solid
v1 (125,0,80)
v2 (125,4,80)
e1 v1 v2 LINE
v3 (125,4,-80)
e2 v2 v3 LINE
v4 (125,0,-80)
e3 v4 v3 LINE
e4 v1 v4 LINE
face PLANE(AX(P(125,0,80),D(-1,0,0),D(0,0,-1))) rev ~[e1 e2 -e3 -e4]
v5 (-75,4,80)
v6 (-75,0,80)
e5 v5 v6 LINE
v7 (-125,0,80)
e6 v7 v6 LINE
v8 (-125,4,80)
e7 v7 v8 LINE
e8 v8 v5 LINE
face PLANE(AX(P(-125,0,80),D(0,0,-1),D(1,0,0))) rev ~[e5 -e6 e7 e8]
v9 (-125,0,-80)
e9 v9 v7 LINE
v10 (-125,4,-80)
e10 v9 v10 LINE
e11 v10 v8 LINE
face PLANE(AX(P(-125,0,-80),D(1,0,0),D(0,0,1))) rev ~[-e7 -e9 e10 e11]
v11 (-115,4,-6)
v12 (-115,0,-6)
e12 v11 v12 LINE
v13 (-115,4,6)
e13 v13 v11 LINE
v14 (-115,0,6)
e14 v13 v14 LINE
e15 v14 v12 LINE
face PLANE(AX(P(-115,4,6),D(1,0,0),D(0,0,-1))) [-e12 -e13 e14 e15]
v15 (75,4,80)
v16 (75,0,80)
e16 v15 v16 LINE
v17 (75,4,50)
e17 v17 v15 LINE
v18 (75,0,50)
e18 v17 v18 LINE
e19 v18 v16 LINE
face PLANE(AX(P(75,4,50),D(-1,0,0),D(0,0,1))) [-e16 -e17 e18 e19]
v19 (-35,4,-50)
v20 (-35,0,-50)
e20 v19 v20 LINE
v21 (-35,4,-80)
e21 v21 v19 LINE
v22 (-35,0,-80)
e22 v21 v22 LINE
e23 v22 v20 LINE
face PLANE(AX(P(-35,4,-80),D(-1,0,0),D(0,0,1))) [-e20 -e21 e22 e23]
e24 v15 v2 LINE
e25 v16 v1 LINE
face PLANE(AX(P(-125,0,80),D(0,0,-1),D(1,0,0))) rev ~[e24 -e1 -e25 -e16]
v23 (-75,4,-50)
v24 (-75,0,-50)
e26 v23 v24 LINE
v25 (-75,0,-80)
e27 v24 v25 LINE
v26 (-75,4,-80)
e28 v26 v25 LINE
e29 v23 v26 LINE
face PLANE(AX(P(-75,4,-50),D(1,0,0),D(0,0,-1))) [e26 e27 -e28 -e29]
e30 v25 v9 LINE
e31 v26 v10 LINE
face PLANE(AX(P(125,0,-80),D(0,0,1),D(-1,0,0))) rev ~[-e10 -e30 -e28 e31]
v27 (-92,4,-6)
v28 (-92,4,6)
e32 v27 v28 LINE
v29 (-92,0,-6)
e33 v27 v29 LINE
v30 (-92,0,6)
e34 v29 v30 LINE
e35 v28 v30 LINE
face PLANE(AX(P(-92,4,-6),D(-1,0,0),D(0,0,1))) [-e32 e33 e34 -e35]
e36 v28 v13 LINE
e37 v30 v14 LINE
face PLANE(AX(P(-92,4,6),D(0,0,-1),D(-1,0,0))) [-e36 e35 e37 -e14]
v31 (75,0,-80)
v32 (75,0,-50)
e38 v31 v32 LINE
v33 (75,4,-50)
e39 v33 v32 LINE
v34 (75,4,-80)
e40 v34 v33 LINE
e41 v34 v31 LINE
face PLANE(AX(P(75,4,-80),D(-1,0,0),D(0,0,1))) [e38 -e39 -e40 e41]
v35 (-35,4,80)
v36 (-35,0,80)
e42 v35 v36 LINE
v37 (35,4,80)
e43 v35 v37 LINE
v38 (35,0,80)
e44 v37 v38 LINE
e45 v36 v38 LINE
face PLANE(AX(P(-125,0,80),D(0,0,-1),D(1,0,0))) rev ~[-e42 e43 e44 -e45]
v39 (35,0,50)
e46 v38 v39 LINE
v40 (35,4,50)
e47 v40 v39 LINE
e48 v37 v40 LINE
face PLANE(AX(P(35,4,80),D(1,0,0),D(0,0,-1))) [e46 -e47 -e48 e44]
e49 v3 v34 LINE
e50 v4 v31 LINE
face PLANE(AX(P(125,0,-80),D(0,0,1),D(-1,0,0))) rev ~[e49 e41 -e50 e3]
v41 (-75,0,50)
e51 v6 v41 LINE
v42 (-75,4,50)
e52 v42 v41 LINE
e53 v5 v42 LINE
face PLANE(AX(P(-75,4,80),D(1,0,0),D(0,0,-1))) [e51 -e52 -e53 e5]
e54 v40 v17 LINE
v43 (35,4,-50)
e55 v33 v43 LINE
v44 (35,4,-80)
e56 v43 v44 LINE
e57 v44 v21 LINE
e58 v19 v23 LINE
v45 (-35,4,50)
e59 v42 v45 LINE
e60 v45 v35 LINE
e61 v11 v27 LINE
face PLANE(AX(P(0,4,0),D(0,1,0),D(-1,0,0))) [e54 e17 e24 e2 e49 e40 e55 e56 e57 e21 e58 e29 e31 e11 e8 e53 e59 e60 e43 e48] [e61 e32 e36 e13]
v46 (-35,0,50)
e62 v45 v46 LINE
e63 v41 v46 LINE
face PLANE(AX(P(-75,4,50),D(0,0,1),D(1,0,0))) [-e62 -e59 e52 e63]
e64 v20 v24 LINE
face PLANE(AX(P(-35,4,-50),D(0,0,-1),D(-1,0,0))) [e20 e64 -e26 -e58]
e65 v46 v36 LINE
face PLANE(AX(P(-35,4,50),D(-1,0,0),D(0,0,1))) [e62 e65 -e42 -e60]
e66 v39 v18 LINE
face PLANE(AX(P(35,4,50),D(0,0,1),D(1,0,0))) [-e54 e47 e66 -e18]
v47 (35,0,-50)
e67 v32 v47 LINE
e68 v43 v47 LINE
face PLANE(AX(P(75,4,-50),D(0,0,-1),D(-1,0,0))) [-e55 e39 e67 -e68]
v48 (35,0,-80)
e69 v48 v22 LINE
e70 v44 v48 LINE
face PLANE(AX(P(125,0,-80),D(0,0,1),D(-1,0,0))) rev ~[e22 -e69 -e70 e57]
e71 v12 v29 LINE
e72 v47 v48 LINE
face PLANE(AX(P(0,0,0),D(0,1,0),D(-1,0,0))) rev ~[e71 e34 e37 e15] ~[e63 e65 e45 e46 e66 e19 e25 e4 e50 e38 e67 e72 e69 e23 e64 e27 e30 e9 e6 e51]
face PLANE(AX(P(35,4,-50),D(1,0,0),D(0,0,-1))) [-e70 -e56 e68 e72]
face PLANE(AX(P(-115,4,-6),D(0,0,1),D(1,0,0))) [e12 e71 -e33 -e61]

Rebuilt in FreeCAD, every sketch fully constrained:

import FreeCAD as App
import Part
import Sketcher
from FreeCAD import Vector
Q = App.Units.Quantity

doc = App.newDocument("Part")
body = doc.addObject("PartDesign::Body", "Body")

sketch1 = doc.addObject("Sketcher::SketchObject", "Sketch")
body.addObject(sketch1)
sketch1.AttachmentSupport = (doc.XZ_Plane, [""])
sketch1.MapMode = "FlatFace"
sketch1.addGeometry(Part.LineSegment(Vector(-125, -80, 0), Vector(-125, 80, 0)), False)
sketch1.addGeometry(Part.LineSegment(Vector(-125, 80, 0), Vector(125, 80, 0)), False)
sketch1.addGeometry(Part.LineSegment(Vector(125, 80, 0), Vector(125, -80, 0)), False)
sketch1.addGeometry(Part.LineSegment(Vector(125, -80, 0), Vector(-125, -80, 0)), False)
sketch1.addConstraint(Sketcher.Constraint("Coincident", 0, 2, 1, 1))
sketch1.addConstraint(Sketcher.Constraint("Coincident", 1, 2, 2, 1))
sketch1.addConstraint(Sketcher.Constraint("Coincident", 2, 2, 3, 1))
sketch1.addConstraint(Sketcher.Constraint("Coincident", 3, 2, 0, 1))
sketch1.addConstraint(Sketcher.Constraint("Vertical", 0))
sketch1.addConstraint(Sketcher.Constraint("Horizontal", 1))
sketch1.addConstraint(Sketcher.Constraint("Vertical", 2))
sketch1.addConstraint(Sketcher.Constraint("Horizontal", 3))
sketch1.addConstraint(Sketcher.Constraint("Symmetric", 0, 2, 2, 2, -1, 1))
sketch1.addConstraint(Sketcher.Constraint("DistanceX", 1, 1, 1, 2, Q("250 mm")))
sketch1.addConstraint(Sketcher.Constraint("DistanceY", 0, 1, 0, 2, Q("160 mm")))
pad1 = doc.addObject("PartDesign::Pad", "Pad")
body.addObject(pad1)
pad1.Profile = sketch1
pad1.Length = 4
pad1.Reversed = True

sketch2 = doc.addObject("Sketcher::SketchObject", "Sketch001")
body.addObject(sketch2)
sketch2.AttachmentSupport = (doc.XZ_Plane, [""])
sketch2.MapMode = "FlatFace"
sketch2.AttachmentOffset = App.Placement(Vector(0, 0, -4), App.Rotation())
sketch2.addGeometry(Part.LineSegment(Vector(75, -80, 0), Vector(35, -80, 0)), False)
sketch2.addGeometry(Part.LineSegment(Vector(35, -80, 0), Vector(35, -50, 0)), False)
sketch2.addGeometry(Part.LineSegment(Vector(35, -50, 0), Vector(75, -50, 0)), False)
sketch2.addGeometry(Part.LineSegment(Vector(75, -50, 0), Vector(75, -80, 0)), False)
sketch2.addGeometry(Part.LineSegment(Vector(-35, -80, 0), Vector(-75, -80, 0)), False)
sketch2.addGeometry(Part.LineSegment(Vector(-75, -80, 0), Vector(-75, -50, 0)), False)
sketch2.addGeometry(Part.LineSegment(Vector(-75, -50, 0), Vector(-35, -50, 0)), False)
sketch2.addGeometry(Part.LineSegment(Vector(-35, -50, 0), Vector(-35, -80, 0)), False)
sketch2.addGeometry(Part.LineSegment(Vector(35, 50, 0), Vector(35, 80, 0)), False)
sketch2.addGeometry(Part.LineSegment(Vector(35, 80, 0), Vector(75, 80, 0)), False)
sketch2.addGeometry(Part.LineSegment(Vector(75, 80, 0), Vector(75, 50, 0)), False)
sketch2.addGeometry(Part.LineSegment(Vector(75, 50, 0), Vector(35, 50, 0)), False)
sketch2.addGeometry(Part.LineSegment(Vector(-75, 50, 0), Vector(-75, 80, 0)), False)
sketch2.addGeometry(Part.LineSegment(Vector(-75, 80, 0), Vector(-35, 80, 0)), False)
sketch2.addGeometry(Part.LineSegment(Vector(-35, 80, 0), Vector(-35, 50, 0)), False)
sketch2.addGeometry(Part.LineSegment(Vector(-35, 50, 0), Vector(-75, 50, 0)), False)
sketch2.addGeometry(Part.LineSegment(Vector(-92, -6, 0), Vector(-115, -6, 0)), False)
sketch2.addGeometry(Part.LineSegment(Vector(-115, -6, 0), Vector(-115, 6, 0)), False)
sketch2.addGeometry(Part.LineSegment(Vector(-115, 6, 0), Vector(-92, 6, 0)), False)
sketch2.addGeometry(Part.LineSegment(Vector(-92, 6, 0), Vector(-92, -6, 0)), False)
sketch2.addConstraint(Sketcher.Constraint("Coincident", 0, 2, 1, 1))
sketch2.addConstraint(Sketcher.Constraint("Coincident", 1, 2, 2, 1))
sketch2.addConstraint(Sketcher.Constraint("Coincident", 2, 2, 3, 1))
sketch2.addConstraint(Sketcher.Constraint("Coincident", 3, 2, 0, 1))
sketch2.addConstraint(Sketcher.Constraint("Coincident", 4, 2, 5, 1))
sketch2.addConstraint(Sketcher.Constraint("Coincident", 5, 2, 6, 1))
sketch2.addConstraint(Sketcher.Constraint("Coincident", 6, 2, 7, 1))
sketch2.addConstraint(Sketcher.Constraint("Coincident", 7, 2, 4, 1))
sketch2.addConstraint(Sketcher.Constraint("Coincident", 8, 2, 9, 1))
sketch2.addConstraint(Sketcher.Constraint("Coincident", 9, 2, 10, 1))
sketch2.addConstraint(Sketcher.Constraint("Coincident", 10, 2, 11, 1))
sketch2.addConstraint(Sketcher.Constraint("Coincident", 11, 2, 8, 1))
sketch2.addConstraint(Sketcher.Constraint("Coincident", 12, 2, 13, 1))
sketch2.addConstraint(Sketcher.Constraint("Coincident", 13, 2, 14, 1))
sketch2.addConstraint(Sketcher.Constraint("Coincident", 14, 2, 15, 1))
sketch2.addConstraint(Sketcher.Constraint("Coincident", 15, 2, 12, 1))
sketch2.addConstraint(Sketcher.Constraint("Coincident", 16, 2, 17, 1))
sketch2.addConstraint(Sketcher.Constraint("Coincident", 17, 2, 18, 1))
sketch2.addConstraint(Sketcher.Constraint("Coincident", 18, 2, 19, 1))
sketch2.addConstraint(Sketcher.Constraint("Coincident", 19, 2, 16, 1))
sketch2.addConstraint(Sketcher.Constraint("Horizontal", 0))
sketch2.addConstraint(Sketcher.Constraint("Vertical", 1))
sketch2.addConstraint(Sketcher.Constraint("Horizontal", 2))
sketch2.addConstraint(Sketcher.Constraint("Vertical", 3))
sketch2.addConstraint(Sketcher.Constraint("Horizontal", 4))
sketch2.addConstraint(Sketcher.Constraint("Vertical", 5))
sketch2.addConstraint(Sketcher.Constraint("Horizontal", 6))
sketch2.addConstraint(Sketcher.Constraint("Vertical", 7))
sketch2.addConstraint(Sketcher.Constraint("Vertical", 8))
sketch2.addConstraint(Sketcher.Constraint("Horizontal", 9))
sketch2.addConstraint(Sketcher.Constraint("Vertical", 10))
sketch2.addConstraint(Sketcher.Constraint("Horizontal", 11))
sketch2.addConstraint(Sketcher.Constraint("Vertical", 12))
sketch2.addConstraint(Sketcher.Constraint("Horizontal", 13))
sketch2.addConstraint(Sketcher.Constraint("Vertical", 14))
sketch2.addConstraint(Sketcher.Constraint("Horizontal", 15))
sketch2.addConstraint(Sketcher.Constraint("Horizontal", 16))
sketch2.addConstraint(Sketcher.Constraint("Vertical", 17))
sketch2.addConstraint(Sketcher.Constraint("Horizontal", 18))
sketch2.addConstraint(Sketcher.Constraint("Vertical", 19))
sketch2.addConstraint(Sketcher.Constraint("Symmetric", 7, 2, 8, 2, -1, 1))
sketch2.addConstraint(Sketcher.Constraint("Symmetric", 5, 2, 10, 2, -1, 1))
sketch2.addConstraint(Sketcher.Constraint("Symmetric", 3, 2, 12, 2, -1, 1))
sketch2.addConstraint(Sketcher.Constraint("Symmetric", 1, 2, 14, 2, -1, 1))
sketch2.addConstraint(Sketcher.Constraint("Symmetric", 3, 2, 4, 2, -2))
sketch2.addConstraint(Sketcher.Constraint("Symmetric", 1, 2, 6, 2, -2))
sketch2.addConstraint(Sketcher.Constraint("DistanceX", 0, 2, 0, 1, Q("40 mm")))
sketch2.addConstraint(Sketcher.Constraint("DistanceX", 16, 2, 16, 1, Q("23 mm")))
sketch2.addConstraint(Sketcher.Constraint("DistanceY", 1, 1, 1, 2, Q("30 mm")))
sketch2.addConstraint(Sketcher.Constraint("DistanceY", 17, 1, 17, 2, Q("12 mm")))
sketch2.addConstraint(Sketcher.Constraint("DistanceX", -1, 1, 0, 2, Q("35 mm")))
sketch2.addConstraint(Sketcher.Constraint("DistanceY", 1, 2, -1, 1, Q("50 mm")))
sketch2.addConstraint(Sketcher.Constraint("DistanceX", 16, 2, 5, 2, Q("40 mm")))
sketch2.addConstraint(Sketcher.Constraint("DistanceY", 16, 2, -1, 1, Q("6 mm")))
pocket1 = doc.addObject("PartDesign::Pocket", "Pocket")
body.addObject(pocket1)
pocket1.Profile = sketch2
pocket1.Length = 10
pocket1.Reversed = True

doc.recompute()
